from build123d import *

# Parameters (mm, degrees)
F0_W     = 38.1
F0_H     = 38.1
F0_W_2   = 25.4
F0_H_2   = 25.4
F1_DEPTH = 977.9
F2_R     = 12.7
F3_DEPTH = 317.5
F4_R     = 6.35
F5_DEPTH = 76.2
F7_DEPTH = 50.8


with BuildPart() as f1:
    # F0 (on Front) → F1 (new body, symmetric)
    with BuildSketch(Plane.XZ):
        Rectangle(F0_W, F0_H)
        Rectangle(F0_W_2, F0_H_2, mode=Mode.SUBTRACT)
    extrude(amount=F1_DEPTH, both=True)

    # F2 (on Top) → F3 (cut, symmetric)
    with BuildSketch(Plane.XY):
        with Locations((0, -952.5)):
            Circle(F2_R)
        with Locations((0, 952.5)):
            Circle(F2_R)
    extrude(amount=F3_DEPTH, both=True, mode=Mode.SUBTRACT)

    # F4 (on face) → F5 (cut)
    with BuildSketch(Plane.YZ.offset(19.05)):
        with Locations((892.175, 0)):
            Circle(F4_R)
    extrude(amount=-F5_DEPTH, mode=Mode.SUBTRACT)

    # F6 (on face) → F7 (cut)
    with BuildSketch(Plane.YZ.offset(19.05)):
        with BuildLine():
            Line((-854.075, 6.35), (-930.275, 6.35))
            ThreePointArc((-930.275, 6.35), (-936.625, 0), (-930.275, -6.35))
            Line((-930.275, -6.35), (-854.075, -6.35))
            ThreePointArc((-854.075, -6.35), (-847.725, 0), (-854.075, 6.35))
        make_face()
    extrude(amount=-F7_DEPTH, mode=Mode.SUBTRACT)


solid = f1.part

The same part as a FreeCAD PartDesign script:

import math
import FreeCAD as App
import Part
import Sketcher

V = App.Vector
Q = App.Units.Quantity


def add_polygon(sketch, points):
    """Adds a closed chain of lines whose ends are joined by coincident constraints."""
    first, n = sketch.GeometryCount, len(points)
    for a, b in zip(points, points[1:] + points[:1]):
        sketch.addGeometry(Part.LineSegment(App.Vector(*a, 0), App.Vector(*b, 0)), False)
    for i in range(n):
        sketch.addConstraint(Sketcher.Constraint("Coincident", first + i, 2, first + (i + 1) % n, 1))

doc = App.newDocument("Part")
params = doc.addObject("Spreadsheet::Sheet", "Params")
for row, (alias, value) in enumerate([
    ("sketch1_width", "1 in"),
    ("sketch1_width2", "1.5 in"),
    ("pad1_length", "77 in"),
    ("sketch2_diameter", "1 in"),
    ("pocket1_length", "25 in"),
    ("sketch3_diameter", "0.5 in"),
    ("pocket2_length", "3 in"),
    ("sketch4_width", "3 in"),
    ("sketch4_radius", "0.25 in"),
    ("pocket3_length", "2 in"),
], start=1):
    params.set(f"A{row}", alias)
    params.set(f"B{row}", "=" + value)
    params.setAlias(f"B{row}", alias)

body = doc.addObject("PartDesign::Body", "Body")

sketch1 = body.newObject("Sketcher::SketchObject", "Sketch")
sketch1.AttachmentSupport = (doc.getObject("XZ_Plane"), [""])
sketch1.MapMode = "FlatFace"
add_polygon(sketch1, [(-19, 19), (-19, -19), (19, -19), (19, 19)])
add_polygon(sketch1, [(13, -13), (-13, -13), (-13, 13), (13, 13)])
sketch1.addConstraint([
    Sketcher.Constraint("Vertical", 0),
    Sketcher.Constraint("Horizontal", 1),
    Sketcher.Constraint("Vertical", 2),
    Sketcher.Constraint("Horizontal", 3),
    Sketcher.Constraint("Horizontal", 4),
    Sketcher.Constraint("Vertical", 5),
    Sketcher.Constraint("Horizontal", 6),
    Sketcher.Constraint("Vertical", 7),
    Sketcher.Constraint("Symmetric", 0, 2, 2, 2, -1, 1),
    Sketcher.Constraint("Symmetric", 4, 2, 6, 2, -1, 1),
    Sketcher.Constraint("Equal", 3, 0),
    Sketcher.Constraint("Equal", 6, 5),
    Sketcher.Constraint("DistanceX", 4, 2, 4, 1, Q("1 in")),
    Sketcher.Constraint("DistanceX", 1, 1, 1, 2, Q("1.5 in")),
])
sketch1.setExpression("Constraints[20]", "Params.sketch1_width")
sketch1.setExpression("Constraints[21]", "Params.sketch1_width2")
pad1 = body.newObject("PartDesign::Pad", "Pad")
pad1.Profile = sketch1
pad1.setExpression("Length", "Params.pad1_length")
pad1.Midplane = True

sketch2 = body.newObject("Sketcher::SketchObject", "Sketch001")
sketch2.AttachmentSupport = (doc.getObject("XY_Plane"), [""])
sketch2.MapMode = "FlatFace"
sketch2.addGeometry([
    Part.Circle(V(0, -952, 0), V(0, 0, 1), 13),
    Part.Circle(V(0, 952, 0), V(0, 0, 1), 13),
], False)
sketch2.addConstraint([
    Sketcher.Constraint("Equal", 0, 1),
    Sketcher.Constraint("Symmetric", 0, 3, 1, 3, -1, 1),
    Sketcher.Constraint("PointOnObject", 0, 3, -2),
    Sketcher.Constraint("Diameter", 0, Q("1 in")),
    Sketcher.Constraint("DistanceY", 0, 3, 1, 3, Q("75 in")),
])
sketch2.setExpression("Constraints[3]", "Params.sketch2_diameter")
pocket1 = body.newObject("PartDesign::Pocket", "Pocket")
pocket1.Profile = sketch2
pocket1.setExpression("Length", "Params.pocket1_length")
pocket1.Midplane = True

sketch3 = body.newObject("Sketcher::SketchObject", "Sketch002")
sketch3.AttachmentSupport = (doc.getObject("YZ_Plane"), [""])
sketch3.MapMode = "FlatFace"
sketch3.AttachmentOffset = App.Placement(V(0, 0, 0.75 * 25.4), App.Rotation())
sketch3.addGeometry(Part.Circle(V(892, 0, 0), V(0, 0, 1), 6), False)
sketch3.addConstraint([
    Sketcher.Constraint("PointOnObject", 0, 3, -1),
    Sketcher.Constraint("Diameter", 0, Q("0.5 in")),
    Sketcher.Constraint("DistanceX", -1, 1, 0, 3, Q("35.125 in")),
])
sketch3.setExpression("Constraints[1]", "Params.sketch3_diameter")
pocket2 = body.newObject("PartDesign::Pocket", "Pocket001")
pocket2.Profile = sketch3
pocket2.setExpression("Length", "Params.pocket2_length")

sketch4 = body.newObject("Sketcher::SketchObject", "Sketch003")
sketch4.AttachmentSupport = (doc.getObject("YZ_Plane"), [""])
sketch4.MapMode = "FlatFace"
sketch4.AttachmentOffset = App.Placement(V(0, 0, 0.75 * 25.4), App.Rotation())
sketch4.addGeometry([
    Part.LineSegment(V(-854, 6, 0), V(-930, 6, 0)),
    Part.ArcOfCircle(Part.Circle(V(-930, 0, 0), V(0, 0, 1), 6), math.radians(90), math.radians(270)),
    Part.LineSegment(V(-930, -6, 0), V(-854, -6, 0)),
    Part.ArcOfCircle(Part.Circle(V(-854, 0, 0), V(0, 0, 1), 6), math.radians(-90), math.radians(90)),
], False)
sketch4.addConstraint([
    Sketcher.Constraint("Tangent", 0, 2, 1, 1),
    Sketcher.Constraint("Tangent", 1, 2, 2, 1),
    Sketcher.Constraint("Tangent", 2, 2, 3, 1),
    Sketcher.Constraint("Tangent", 3, 2, 0, 1),
    Sketcher.Constraint("Horizontal", 0),
    Sketcher.Constraint("Horizontal", 2),
    Sketcher.Constraint("PointOnObject", 1, 3, -1),
    Sketcher.Constraint("DistanceX", 0, 2, 0, 1, Q("3 in")),
    Sketcher.Constraint("Radius", 1, Q("0.25 in")),
    Sketcher.Constraint("DistanceX", 1, 3, -1, 1, Q("36.625 in")),
])
sketch4.setExpression("Constraints[7]", "Params.sketch4_width")
sketch4.setExpression("Constraints[8]", "Params.sketch4_radius")
pocket3 = body.newObject("PartDesign::Pocket", "Pocket002")
pocket3.Profile = sketch4
pocket3.setExpression("Length", "Params.pocket3_length")

doc.recompute()
